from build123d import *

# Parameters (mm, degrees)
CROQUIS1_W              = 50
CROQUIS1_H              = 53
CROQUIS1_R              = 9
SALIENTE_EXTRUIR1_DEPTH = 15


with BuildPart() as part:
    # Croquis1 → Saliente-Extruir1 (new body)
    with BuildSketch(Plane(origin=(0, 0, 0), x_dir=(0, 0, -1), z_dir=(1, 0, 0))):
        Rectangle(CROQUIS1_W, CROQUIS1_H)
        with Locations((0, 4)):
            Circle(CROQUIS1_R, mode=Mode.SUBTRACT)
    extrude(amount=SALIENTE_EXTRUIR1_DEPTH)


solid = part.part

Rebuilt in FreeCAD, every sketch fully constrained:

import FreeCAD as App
import Part
import Sketcher
from FreeCAD import Vector
Q = App.Units.Quantity


def add_polygon(sketch, points):
    """Adds a closed chain of lines whose ends are joined by coincident constraints."""
    first, n = sketch.GeometryCount, len(points)
    for a, b in zip(points, points[1:] + points[:1]):
        sketch.addGeometry(Part.LineSegment(App.Vector(*a, 0), App.Vector(*b, 0)), False)
    for i in range(n):
        sketch.addConstraint(Sketcher.Constraint("Coincident", first + i, 2, first + (i + 1) % n, 1))

doc = App.newDocument("Part")
body = doc.addObject("PartDesign::Body", "Body")

sketch1 = body.newObject("Sketcher::SketchObject", "Sketch")
sketch1.AttachmentSupport = (doc.getObject("YZ_Plane"), [""])
sketch1.MapMode = "FlatFace"
add_polygon(sketch1, [(26.5, 25), (-26.5, 25), (-26.5, -25), (26.5, -25)])
sketch1.addGeometry(Part.Circle(Vector(4, 0, 0), Vector(0, 0, 1), 9), False)
sketch1.addConstraint([
    Sketcher.Constraint("Horizontal", 0),
    Sketcher.Constraint("Vertical", 1),
    Sketcher.Constraint("Horizontal", 2),
    Sketcher.Constraint("Vertical", 3),
    Sketcher.Constraint("Symmetric", 0, 2, 2, 2, -1, 1),
    Sketcher.Constraint("PointOnObject", 4, 3, -1),
    Sketcher.Constraint("Diameter", 4, Q("18 mm")),
    Sketcher.Constraint("DistanceX", 0, 2, 0, 1, Q("53 mm")),
    Sketcher.Constraint("DistanceY", 1, 2, 1, 1, Q("50 mm")),
    Sketcher.Constraint("DistanceX", -1, 1, 4, 3, Q("4 mm")),
])
pad1 = body.newObject("PartDesign::Pad", "Pad")
pad1.Profile = sketch1
pad1.Length = 15

doc.recompute()
